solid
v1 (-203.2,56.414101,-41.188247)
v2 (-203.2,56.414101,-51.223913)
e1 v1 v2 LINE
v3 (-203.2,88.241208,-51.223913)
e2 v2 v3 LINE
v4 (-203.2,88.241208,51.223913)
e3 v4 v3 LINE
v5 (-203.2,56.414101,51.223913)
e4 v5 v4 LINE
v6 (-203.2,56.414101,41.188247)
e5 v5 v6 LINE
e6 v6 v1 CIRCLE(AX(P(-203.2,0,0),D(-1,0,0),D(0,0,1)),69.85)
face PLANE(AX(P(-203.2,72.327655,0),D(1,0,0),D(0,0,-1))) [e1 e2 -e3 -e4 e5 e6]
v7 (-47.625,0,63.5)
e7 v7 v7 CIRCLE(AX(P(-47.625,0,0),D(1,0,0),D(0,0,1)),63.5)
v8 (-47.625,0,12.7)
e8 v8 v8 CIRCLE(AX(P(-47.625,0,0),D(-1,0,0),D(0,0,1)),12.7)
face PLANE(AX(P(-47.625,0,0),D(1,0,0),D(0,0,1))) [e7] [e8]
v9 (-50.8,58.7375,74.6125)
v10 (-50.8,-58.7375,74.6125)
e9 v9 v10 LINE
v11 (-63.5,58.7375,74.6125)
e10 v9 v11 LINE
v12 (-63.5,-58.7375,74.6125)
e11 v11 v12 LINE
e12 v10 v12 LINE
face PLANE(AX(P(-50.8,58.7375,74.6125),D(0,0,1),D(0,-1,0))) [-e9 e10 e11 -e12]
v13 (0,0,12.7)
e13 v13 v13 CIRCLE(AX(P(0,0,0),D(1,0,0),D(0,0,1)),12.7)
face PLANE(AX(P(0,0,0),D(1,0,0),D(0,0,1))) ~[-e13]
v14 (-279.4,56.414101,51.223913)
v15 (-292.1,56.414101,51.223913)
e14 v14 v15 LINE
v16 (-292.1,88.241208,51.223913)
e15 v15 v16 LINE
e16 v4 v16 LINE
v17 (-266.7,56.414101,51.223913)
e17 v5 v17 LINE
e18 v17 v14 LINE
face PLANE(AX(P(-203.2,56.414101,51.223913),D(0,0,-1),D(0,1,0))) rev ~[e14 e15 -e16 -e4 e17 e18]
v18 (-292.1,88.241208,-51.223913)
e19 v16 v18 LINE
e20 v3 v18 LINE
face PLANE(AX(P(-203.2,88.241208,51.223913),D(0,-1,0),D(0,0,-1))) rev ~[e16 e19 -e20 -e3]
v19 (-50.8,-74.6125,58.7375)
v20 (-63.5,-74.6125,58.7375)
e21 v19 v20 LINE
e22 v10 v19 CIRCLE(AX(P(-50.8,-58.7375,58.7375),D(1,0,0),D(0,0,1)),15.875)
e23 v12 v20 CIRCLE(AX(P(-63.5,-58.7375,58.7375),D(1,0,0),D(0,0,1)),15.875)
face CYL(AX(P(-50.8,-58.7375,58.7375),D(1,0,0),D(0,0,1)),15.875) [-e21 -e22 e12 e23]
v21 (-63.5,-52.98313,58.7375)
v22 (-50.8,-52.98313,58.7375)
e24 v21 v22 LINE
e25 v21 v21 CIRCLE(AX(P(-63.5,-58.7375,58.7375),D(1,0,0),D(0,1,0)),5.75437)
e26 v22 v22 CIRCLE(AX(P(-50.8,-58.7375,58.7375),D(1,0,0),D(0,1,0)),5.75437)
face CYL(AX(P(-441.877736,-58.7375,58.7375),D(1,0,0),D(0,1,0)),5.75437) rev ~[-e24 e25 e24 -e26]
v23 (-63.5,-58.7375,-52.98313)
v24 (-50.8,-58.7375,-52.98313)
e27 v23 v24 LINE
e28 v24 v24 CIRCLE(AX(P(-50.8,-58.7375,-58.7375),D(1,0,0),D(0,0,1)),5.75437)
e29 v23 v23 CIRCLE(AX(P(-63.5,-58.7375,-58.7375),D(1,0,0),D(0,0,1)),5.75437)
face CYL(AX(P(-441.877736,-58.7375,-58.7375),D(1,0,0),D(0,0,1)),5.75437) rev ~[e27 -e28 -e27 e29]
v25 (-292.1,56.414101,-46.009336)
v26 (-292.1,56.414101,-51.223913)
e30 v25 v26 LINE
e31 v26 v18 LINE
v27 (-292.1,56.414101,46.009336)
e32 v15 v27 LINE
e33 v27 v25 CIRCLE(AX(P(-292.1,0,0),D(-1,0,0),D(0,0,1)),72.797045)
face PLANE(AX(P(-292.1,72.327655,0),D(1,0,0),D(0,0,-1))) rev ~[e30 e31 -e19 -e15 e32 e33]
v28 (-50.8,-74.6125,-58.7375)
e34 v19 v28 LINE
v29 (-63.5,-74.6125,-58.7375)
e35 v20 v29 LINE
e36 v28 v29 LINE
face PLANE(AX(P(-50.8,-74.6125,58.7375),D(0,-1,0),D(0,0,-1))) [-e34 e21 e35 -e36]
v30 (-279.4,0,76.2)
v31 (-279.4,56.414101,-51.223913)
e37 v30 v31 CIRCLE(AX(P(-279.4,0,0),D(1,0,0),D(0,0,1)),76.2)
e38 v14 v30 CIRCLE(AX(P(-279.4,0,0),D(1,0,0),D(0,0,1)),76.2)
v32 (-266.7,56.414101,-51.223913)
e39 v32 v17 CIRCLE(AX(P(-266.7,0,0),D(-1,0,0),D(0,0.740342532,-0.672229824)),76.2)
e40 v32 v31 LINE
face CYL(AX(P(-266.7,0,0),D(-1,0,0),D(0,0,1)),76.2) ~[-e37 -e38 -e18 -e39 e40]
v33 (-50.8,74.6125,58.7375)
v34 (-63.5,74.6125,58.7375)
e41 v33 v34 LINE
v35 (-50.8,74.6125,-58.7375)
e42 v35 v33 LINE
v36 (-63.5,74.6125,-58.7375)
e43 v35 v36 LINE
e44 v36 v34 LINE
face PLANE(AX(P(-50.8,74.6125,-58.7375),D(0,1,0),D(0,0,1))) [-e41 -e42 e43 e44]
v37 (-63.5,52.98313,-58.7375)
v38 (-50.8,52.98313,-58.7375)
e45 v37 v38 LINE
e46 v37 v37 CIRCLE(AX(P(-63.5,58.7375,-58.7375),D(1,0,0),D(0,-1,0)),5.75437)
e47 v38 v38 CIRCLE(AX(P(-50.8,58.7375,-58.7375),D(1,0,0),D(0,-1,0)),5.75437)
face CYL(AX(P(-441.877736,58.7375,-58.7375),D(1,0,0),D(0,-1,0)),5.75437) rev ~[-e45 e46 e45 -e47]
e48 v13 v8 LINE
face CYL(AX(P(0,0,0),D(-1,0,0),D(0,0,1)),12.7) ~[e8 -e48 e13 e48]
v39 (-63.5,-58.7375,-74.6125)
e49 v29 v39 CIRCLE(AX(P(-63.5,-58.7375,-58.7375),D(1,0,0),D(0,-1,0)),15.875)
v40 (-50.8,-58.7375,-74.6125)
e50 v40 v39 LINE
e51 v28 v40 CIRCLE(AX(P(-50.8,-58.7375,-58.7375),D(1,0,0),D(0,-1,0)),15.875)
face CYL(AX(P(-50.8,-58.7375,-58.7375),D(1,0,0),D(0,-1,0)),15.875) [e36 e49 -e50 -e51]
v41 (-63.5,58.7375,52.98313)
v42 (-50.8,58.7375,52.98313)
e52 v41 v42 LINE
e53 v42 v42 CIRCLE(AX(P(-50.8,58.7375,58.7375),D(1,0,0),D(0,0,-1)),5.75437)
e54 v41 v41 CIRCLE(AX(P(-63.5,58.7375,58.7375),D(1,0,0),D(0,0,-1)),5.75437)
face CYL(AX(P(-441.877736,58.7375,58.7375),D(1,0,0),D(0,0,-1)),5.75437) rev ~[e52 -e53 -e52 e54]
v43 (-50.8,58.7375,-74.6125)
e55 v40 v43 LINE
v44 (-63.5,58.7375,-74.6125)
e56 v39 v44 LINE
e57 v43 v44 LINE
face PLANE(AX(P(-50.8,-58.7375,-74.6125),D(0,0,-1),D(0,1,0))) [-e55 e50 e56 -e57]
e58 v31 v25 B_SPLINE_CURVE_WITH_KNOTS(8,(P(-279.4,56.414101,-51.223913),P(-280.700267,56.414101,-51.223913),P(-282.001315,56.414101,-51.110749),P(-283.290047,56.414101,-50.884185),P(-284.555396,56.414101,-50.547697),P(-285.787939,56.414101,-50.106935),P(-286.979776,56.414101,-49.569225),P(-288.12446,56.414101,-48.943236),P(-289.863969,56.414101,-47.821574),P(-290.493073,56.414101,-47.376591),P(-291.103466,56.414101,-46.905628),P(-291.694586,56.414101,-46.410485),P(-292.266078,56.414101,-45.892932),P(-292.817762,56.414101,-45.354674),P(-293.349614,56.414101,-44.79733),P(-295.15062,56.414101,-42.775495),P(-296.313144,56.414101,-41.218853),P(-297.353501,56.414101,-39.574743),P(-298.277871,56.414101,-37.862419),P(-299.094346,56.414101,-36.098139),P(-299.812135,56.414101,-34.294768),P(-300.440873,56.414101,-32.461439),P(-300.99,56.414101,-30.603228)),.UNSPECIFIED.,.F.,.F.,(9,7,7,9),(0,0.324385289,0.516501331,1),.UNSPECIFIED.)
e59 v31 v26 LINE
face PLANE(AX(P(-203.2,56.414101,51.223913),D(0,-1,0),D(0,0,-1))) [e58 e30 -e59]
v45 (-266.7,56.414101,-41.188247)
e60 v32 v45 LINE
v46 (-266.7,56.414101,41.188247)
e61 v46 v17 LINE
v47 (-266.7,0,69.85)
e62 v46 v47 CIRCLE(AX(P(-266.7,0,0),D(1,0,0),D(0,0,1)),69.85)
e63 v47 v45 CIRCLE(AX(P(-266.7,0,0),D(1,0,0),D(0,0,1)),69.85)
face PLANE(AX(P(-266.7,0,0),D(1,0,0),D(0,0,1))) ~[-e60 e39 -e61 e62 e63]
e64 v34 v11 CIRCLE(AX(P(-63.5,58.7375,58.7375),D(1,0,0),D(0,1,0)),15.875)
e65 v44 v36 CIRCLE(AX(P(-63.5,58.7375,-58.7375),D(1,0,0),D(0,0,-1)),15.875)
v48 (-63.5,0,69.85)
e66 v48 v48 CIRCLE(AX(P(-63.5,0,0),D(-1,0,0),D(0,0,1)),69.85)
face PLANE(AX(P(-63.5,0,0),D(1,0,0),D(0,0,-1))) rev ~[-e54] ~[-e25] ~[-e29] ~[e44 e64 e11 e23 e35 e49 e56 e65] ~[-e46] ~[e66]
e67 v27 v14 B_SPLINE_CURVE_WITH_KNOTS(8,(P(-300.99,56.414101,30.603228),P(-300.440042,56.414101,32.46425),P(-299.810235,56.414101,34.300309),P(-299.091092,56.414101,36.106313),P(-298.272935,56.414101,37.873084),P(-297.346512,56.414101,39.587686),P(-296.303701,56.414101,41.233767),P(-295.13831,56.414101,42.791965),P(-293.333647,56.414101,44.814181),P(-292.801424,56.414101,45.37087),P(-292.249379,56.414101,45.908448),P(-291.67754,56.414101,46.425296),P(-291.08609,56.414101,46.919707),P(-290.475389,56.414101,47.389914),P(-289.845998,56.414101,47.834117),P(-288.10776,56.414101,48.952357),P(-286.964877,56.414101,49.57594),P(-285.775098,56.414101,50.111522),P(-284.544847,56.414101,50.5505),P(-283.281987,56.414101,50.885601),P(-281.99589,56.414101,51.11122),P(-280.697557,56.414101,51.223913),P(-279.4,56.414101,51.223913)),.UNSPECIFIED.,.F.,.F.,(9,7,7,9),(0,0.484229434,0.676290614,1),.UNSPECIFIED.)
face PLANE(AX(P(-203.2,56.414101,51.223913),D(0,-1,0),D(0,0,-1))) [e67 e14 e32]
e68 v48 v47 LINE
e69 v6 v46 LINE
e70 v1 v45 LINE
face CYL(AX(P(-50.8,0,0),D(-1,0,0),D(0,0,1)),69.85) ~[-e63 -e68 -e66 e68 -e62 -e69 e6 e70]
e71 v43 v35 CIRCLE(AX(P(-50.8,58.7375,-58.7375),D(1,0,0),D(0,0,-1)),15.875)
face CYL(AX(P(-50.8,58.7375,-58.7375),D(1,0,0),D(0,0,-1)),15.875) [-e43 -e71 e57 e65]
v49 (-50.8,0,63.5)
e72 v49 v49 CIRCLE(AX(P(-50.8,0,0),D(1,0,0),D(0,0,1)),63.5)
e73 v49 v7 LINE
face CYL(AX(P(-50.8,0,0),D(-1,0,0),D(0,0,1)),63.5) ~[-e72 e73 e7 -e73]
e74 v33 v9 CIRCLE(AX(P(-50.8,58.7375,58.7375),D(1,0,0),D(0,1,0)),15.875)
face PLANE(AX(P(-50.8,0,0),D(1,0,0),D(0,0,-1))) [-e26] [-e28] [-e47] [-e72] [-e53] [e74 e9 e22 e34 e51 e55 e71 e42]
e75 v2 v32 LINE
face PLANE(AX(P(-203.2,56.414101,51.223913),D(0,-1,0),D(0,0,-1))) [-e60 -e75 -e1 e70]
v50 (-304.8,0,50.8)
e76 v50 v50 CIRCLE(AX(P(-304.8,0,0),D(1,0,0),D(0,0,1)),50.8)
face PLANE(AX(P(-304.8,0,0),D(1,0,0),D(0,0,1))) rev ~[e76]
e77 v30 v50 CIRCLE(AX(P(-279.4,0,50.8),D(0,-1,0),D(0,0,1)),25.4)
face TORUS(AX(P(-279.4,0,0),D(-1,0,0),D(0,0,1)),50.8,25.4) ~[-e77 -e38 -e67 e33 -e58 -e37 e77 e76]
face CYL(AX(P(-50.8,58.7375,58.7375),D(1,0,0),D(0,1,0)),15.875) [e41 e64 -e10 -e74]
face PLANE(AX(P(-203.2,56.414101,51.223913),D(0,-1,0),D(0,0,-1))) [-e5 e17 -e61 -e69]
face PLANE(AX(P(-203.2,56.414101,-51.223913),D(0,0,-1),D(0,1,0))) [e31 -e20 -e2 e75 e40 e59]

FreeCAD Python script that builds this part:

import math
import FreeCAD as App
import Part
import Sketcher

V = App.Vector
Q = App.Units.Quantity


def add_polygon(sketch, points):
    """Adds a closed chain of lines whose ends are joined by coincident constraints."""
    first, n = sketch.GeometryCount, len(points)
    for a, b in zip(points, points[1:] + points[:1]):
        sketch.addGeometry(Part.LineSegment(App.Vector(*a, 0), App.Vector(*b, 0)), False)
    for i in range(n):
        sketch.addConstraint(Sketcher.Constraint("Coincident", first + i, 2, first + (i + 1) % n, 1))

doc = App.newDocument("Part")
body = doc.addObject("PartDesign::Body", "Body")

# Sketch on XY plane
sketch1 = body.newObject("Sketcher::SketchObject", "Sketch")
sketch1.AttachmentSupport = (doc.getObject("XY_Plane"), [""])
sketch1.MapMode = "FlatFace"
sketch1.addGeometry(Part.LineSegment(V(0, 0, 0), V(0, 13, 0)), False)
sketch1.addGeometry(Part.LineSegment(V(0, 13, 0), V(-51, 13, 0)), False)
sketch1.addGeometry(Part.LineSegment(V(-51, 13, 0), V(-51, 70, 0)), False)
sketch1.addGeometry(Part.LineSegment(V(-51, 70, 0), V(-267, 70, 0)), False)
sketch1.addGeometry(Part.LineSegment(V(-267, 70, 0), V(-267, 76, 0)), False)
sketch1.addGeometry(Part.LineSegment(V(-267, 76, 0), V(-279, 76, 0)), False)
sketch1.addGeometry(Part.ArcOfCircle(Part.Circle(V(-279, 51, 0), V(0, 0, 1), 25), math.radians(90), math.radians(180)), False)
sketch1.addGeometry(Part.LineSegment(V(-305, 51, 0), V(-305, 0, 0)), False)
sketch1.addGeometry(Part.LineSegment(V(-305, 0, 0), V(0, 0, 0)), False)
sketch1.addConstraint(Sketcher.Constraint("Coincident", 0, 2, 1, 1))
sketch1.addConstraint(Sketcher.Constraint("Coincident", 1, 2, 2, 1))
sketch1.addConstraint(Sketcher.Constraint("Coincident", 2, 2, 3, 1))
sketch1.addConstraint(Sketcher.Constraint("Coincident", 3, 2, 4, 1))
sketch1.addConstraint(Sketcher.Constraint("Coincident", 4, 2, 5, 1))
sketch1.addConstraint(Sketcher.Constraint("Tangent", 5, 2, 6, 1))
sketch1.addConstraint(Sketcher.Constraint("Tangent", 6, 2, 7, 1))
sketch1.addConstraint(Sketcher.Constraint("Coincident", 7, 2, 8, 1))
sketch1.addConstraint(Sketcher.Constraint("Coincident", 8, 2, 0, 1))
sketch1.addConstraint(Sketcher.Constraint("Vertical", 0))
sketch1.addConstraint(Sketcher.Constraint("Horizontal", 1))
sketch1.addConstraint(Sketcher.Constraint("Vertical", 2))
sketch1.addConstraint(Sketcher.Constraint("Horizontal", 3))
sketch1.addConstraint(Sketcher.Constraint("Vertical", 4))
sketch1.addConstraint(Sketcher.Constraint("Horizontal", 5))
sketch1.addConstraint(Sketcher.Constraint("Vertical", 7))
sketch1.addConstraint(Sketcher.Constraint("Horizontal", 8))
sketch1.addConstraint(Sketcher.Constraint("Coincident", 8, 2, -1, 1))
sketch1.addConstraint(Sketcher.Constraint("Equal", 5, 0))
sketch1.addConstraint(Sketcher.Constraint("Equal", 1, 7))
sketch1.addConstraint(Sketcher.Constraint("Radius", 6, Q("1 in")))
sketch1.addConstraint(Sketcher.Constraint("DistanceX", 1, 2, 1, 1, Q("2 in")))
sketch1.addConstraint(Sketcher.Constraint("DistanceX", 8, 1, 8, 2, Q("12 in")))
sketch1.addConstraint(Sketcher.Constraint("DistanceX", 3, 2, 3, 1, Q("8.5 in")))
sketch1.addConstraint(Sketcher.Constraint("DistanceY", 2, 1, 2, 2, Q("2.25 in")))
revolution = body.newObject("PartDesign::Revolution", "Revolution")
revolution.Profile = sketch1
revolution.ReferenceAxis = (sketch1, ["H_Axis"])
revolution.Angle = 360

# Sketch on YZ plane
sketch2 = body.newObject("Sketcher::SketchObject", "Sketch001")
sketch2.AttachmentSupport = (doc.getObject("YZ_Plane"), [""])
sketch2.MapMode = "FlatFace"
sketch2.AttachmentOffset = App.Placement(V(0, 0, -2 * 25.4), App.Rotation())
sketch2.addGeometry(Part.LineSegment(V(-59, -75, 0), V(59, -75, 0)), False)
sketch2.addGeometry(Part.ArcOfCircle(Part.Circle(V(59, -59, 0), V(0, 0, 1), 16), math.radians(-90), math.radians(0)), False)
sketch2.addGeometry(Part.LineSegment(V(75, -59, 0), V(75, 59, 0)), False)
sketch2.addGeometry(Part.ArcOfCircle(Part.Circle(V(59, 59, 0), V(0, 0, 1), 16), math.radians(0), math.radians(90)), False)
sketch2.addGeometry(Part.LineSegment(V(59, 75, 0), V(-59, 75, 0)), False)
sketch2.addGeometry(Part.ArcOfCircle(Part.Circle(V(-59, 59, 0), V(0, 0, 1), 16), math.radians(90), math.radians(180)), False)
sketch2.addGeometry(Part.LineSegment(V(-75, 59, 0), V(-75, -59, 0)), False)
sketch2.addGeometry(Part.ArcOfCircle(Part.Circle(V(-59, -59, 0), V(0, 0, 1), 16), math.radians(-180), math.radians(-90)), False)
sketch2.addConstraint(Sketcher.Constraint("Tangent", 0, 2, 1, 1))
sketch2.addConstraint(Sketcher.Constraint("Tangent", 1, 2, 2, 1))
sketch2.addConstraint(Sketcher.Constraint("Tangent", 2, 2, 3, 1))
sketch2.addConstraint(Sketcher.Constraint("Tangent", 3, 2, 4, 1))
sketch2.addConstraint(Sketcher.Constraint("Tangent", 4, 2, 5, 1))
sketch2.addConstraint(Sketcher.Constraint("Tangent", 5, 2, 6, 1))
sketch2.addConstraint(Sketcher.Constraint("Tangent", 6, 2, 7, 1))
sketch2.addConstraint(Sketcher.Constraint("Tangent", 7, 2, 0, 1))
sketch2.addConstraint(Sketcher.Constraint("Horizontal", 0))
sketch2.addConstraint(Sketcher.Constraint("Vertical", 2))
sketch2.addConstraint(Sketcher.Constraint("Horizontal", 4))
sketch2.addConstraint(Sketcher.Constraint("Vertical", 6))
sketch2.addConstraint(Sketcher.Constraint("Equal", 1, 3))
sketch2.addConstraint(Sketcher.Constraint("Equal", 3, 5))
sketch2.addConstraint(Sketcher.Constraint("Equal", 5, 7))
sketch2.addConstraint(Sketcher.Constraint("Symmetric", 1, 3, 5, 3, -1, 1))
sketch2.addConstraint(Sketcher.Constraint("Equal", 4, 2))
sketch2.addConstraint(Sketcher.Constraint("Radius", 1, Q("0.625 in")))
sketch2.addConstraint(Sketcher.Constraint("DistanceX", 0, 1, 0, 2, Q("4.625 in")))
pad1 = body.newObject("PartDesign::Pad", "Pad")
pad1.Profile = sketch2
pad1.Length = Q("0.5 in")
pad1.Reversed = True

# Sketch on YZ plane
sketch3 = body.newObject("Sketcher::SketchObject", "Sketch002")
sketch3.AttachmentSupport = (doc.getObject("YZ_Plane"), [""])
sketch3.MapMode = "FlatFace"
sketch3.AttachmentOffset = App.Placement(V(0, 0, -8 * 25.4), App.Rotation())
add_polygon(sketch3, [(88, 51), (56, 51), (56, -51), (88, -51)])  # lines 0-3
sketch3.addConstraint(Sketcher.Constraint("Horizontal", 0))
sketch3.addConstraint(Sketcher.Constraint("Vertical", 1))
sketch3.addConstraint(Sketcher.Constraint("Horizontal", 2))
sketch3.addConstraint(Sketcher.Constraint("Vertical", 3))
sketch3.addConstraint(Sketcher.Constraint("DistanceX", -1, 1, 0, 2, Q("56.414101 mm")))
sketch3.addConstraint(Sketcher.Constraint("DistanceX", 0, 2, 0, 1, Q("31.827107 mm")))
sketch3.addConstraint(Sketcher.Constraint("DistanceY", 1, 2, 1, 1, Q("102.447825 mm")))
sketch3.addConstraint(Sketcher.Constraint("DistanceY", -1, 1, 0, 2, Q("51.223913 mm")))
pad2 = body.newObject("PartDesign::Pad", "Pad001")
pad2.Profile = sketch3
pad2.Length = Q("3.5 in")
pad2.Reversed = True

# Sketch on YZ plane
sketch4 = body.newObject("Sketcher::SketchObject", "Sketch003")
sketch4.AttachmentSupport = (doc.getObject("YZ_Plane"), [""])
sketch4.MapMode = "FlatFace"
sketch4.AttachmentOffset = App.Placement(V(0, 0, -2 * 25.4), App.Rotation())
sketch4.addGeometry(Part.Circle(V(0, 0, 0), V(0, 0, 1), 64), False)
sketch4.addConstraint(Sketcher.Constraint("Coincident", 0, 3, -1, 1))
sketch4.addConstraint(Sketcher.Constraint("Diameter", 0, Q("5 in")))
pad3 = body.newObject("PartDesign::Pad", "Pad002")
pad3.Profile = sketch4
pad3.Length = Q("0.125 in")

# Sketch on YZ plane
sketch5 = body.newObject("Sketcher::SketchObject", "Sketch004")
sketch5.AttachmentSupport = (doc.getObject("YZ_Plane"), [""])
sketch5.MapMode = "FlatFace"
sketch5.AttachmentOffset = App.Placement(V(0, 0, -2.5 * 25.4), App.Rotation())
sketch5.addGeometry(Part.Circle(V(59, 59, 0), V(0, 0, 1), 6), False)
sketch5.addConstraint(Sketcher.Constraint("Diameter", 0, Q("0.4531 in")))
sketch5.addConstraint(Sketcher.Constraint("DistanceX", -1, 1, 0, 3, Q("2.3125 in")))
sketch5.addConstraint(Sketcher.Constraint("DistanceY", -1, 1, 0, 3, Q("2.3125 in")))
doc.recompute()
hole = body.newObject("PartDesign::Hole", "Hole")
hole.Profile = sketch5
hole.ThreadType = "None"
hole.Diameter = Q("0.4531 in")
hole.DepthType = "ThroughAll"
hole.Reversed = True
doc.recompute()

polarpattern = body.newObject("PartDesign::PolarPattern", "PolarPattern")
polarpattern.Originals = [hole]
polarpattern.Axis = (doc.getObject("X_Axis"), [""])
polarpattern.Angle = 360
polarpattern.Occurrences = 4
body.Tip = polarpattern

doc.recompute()
